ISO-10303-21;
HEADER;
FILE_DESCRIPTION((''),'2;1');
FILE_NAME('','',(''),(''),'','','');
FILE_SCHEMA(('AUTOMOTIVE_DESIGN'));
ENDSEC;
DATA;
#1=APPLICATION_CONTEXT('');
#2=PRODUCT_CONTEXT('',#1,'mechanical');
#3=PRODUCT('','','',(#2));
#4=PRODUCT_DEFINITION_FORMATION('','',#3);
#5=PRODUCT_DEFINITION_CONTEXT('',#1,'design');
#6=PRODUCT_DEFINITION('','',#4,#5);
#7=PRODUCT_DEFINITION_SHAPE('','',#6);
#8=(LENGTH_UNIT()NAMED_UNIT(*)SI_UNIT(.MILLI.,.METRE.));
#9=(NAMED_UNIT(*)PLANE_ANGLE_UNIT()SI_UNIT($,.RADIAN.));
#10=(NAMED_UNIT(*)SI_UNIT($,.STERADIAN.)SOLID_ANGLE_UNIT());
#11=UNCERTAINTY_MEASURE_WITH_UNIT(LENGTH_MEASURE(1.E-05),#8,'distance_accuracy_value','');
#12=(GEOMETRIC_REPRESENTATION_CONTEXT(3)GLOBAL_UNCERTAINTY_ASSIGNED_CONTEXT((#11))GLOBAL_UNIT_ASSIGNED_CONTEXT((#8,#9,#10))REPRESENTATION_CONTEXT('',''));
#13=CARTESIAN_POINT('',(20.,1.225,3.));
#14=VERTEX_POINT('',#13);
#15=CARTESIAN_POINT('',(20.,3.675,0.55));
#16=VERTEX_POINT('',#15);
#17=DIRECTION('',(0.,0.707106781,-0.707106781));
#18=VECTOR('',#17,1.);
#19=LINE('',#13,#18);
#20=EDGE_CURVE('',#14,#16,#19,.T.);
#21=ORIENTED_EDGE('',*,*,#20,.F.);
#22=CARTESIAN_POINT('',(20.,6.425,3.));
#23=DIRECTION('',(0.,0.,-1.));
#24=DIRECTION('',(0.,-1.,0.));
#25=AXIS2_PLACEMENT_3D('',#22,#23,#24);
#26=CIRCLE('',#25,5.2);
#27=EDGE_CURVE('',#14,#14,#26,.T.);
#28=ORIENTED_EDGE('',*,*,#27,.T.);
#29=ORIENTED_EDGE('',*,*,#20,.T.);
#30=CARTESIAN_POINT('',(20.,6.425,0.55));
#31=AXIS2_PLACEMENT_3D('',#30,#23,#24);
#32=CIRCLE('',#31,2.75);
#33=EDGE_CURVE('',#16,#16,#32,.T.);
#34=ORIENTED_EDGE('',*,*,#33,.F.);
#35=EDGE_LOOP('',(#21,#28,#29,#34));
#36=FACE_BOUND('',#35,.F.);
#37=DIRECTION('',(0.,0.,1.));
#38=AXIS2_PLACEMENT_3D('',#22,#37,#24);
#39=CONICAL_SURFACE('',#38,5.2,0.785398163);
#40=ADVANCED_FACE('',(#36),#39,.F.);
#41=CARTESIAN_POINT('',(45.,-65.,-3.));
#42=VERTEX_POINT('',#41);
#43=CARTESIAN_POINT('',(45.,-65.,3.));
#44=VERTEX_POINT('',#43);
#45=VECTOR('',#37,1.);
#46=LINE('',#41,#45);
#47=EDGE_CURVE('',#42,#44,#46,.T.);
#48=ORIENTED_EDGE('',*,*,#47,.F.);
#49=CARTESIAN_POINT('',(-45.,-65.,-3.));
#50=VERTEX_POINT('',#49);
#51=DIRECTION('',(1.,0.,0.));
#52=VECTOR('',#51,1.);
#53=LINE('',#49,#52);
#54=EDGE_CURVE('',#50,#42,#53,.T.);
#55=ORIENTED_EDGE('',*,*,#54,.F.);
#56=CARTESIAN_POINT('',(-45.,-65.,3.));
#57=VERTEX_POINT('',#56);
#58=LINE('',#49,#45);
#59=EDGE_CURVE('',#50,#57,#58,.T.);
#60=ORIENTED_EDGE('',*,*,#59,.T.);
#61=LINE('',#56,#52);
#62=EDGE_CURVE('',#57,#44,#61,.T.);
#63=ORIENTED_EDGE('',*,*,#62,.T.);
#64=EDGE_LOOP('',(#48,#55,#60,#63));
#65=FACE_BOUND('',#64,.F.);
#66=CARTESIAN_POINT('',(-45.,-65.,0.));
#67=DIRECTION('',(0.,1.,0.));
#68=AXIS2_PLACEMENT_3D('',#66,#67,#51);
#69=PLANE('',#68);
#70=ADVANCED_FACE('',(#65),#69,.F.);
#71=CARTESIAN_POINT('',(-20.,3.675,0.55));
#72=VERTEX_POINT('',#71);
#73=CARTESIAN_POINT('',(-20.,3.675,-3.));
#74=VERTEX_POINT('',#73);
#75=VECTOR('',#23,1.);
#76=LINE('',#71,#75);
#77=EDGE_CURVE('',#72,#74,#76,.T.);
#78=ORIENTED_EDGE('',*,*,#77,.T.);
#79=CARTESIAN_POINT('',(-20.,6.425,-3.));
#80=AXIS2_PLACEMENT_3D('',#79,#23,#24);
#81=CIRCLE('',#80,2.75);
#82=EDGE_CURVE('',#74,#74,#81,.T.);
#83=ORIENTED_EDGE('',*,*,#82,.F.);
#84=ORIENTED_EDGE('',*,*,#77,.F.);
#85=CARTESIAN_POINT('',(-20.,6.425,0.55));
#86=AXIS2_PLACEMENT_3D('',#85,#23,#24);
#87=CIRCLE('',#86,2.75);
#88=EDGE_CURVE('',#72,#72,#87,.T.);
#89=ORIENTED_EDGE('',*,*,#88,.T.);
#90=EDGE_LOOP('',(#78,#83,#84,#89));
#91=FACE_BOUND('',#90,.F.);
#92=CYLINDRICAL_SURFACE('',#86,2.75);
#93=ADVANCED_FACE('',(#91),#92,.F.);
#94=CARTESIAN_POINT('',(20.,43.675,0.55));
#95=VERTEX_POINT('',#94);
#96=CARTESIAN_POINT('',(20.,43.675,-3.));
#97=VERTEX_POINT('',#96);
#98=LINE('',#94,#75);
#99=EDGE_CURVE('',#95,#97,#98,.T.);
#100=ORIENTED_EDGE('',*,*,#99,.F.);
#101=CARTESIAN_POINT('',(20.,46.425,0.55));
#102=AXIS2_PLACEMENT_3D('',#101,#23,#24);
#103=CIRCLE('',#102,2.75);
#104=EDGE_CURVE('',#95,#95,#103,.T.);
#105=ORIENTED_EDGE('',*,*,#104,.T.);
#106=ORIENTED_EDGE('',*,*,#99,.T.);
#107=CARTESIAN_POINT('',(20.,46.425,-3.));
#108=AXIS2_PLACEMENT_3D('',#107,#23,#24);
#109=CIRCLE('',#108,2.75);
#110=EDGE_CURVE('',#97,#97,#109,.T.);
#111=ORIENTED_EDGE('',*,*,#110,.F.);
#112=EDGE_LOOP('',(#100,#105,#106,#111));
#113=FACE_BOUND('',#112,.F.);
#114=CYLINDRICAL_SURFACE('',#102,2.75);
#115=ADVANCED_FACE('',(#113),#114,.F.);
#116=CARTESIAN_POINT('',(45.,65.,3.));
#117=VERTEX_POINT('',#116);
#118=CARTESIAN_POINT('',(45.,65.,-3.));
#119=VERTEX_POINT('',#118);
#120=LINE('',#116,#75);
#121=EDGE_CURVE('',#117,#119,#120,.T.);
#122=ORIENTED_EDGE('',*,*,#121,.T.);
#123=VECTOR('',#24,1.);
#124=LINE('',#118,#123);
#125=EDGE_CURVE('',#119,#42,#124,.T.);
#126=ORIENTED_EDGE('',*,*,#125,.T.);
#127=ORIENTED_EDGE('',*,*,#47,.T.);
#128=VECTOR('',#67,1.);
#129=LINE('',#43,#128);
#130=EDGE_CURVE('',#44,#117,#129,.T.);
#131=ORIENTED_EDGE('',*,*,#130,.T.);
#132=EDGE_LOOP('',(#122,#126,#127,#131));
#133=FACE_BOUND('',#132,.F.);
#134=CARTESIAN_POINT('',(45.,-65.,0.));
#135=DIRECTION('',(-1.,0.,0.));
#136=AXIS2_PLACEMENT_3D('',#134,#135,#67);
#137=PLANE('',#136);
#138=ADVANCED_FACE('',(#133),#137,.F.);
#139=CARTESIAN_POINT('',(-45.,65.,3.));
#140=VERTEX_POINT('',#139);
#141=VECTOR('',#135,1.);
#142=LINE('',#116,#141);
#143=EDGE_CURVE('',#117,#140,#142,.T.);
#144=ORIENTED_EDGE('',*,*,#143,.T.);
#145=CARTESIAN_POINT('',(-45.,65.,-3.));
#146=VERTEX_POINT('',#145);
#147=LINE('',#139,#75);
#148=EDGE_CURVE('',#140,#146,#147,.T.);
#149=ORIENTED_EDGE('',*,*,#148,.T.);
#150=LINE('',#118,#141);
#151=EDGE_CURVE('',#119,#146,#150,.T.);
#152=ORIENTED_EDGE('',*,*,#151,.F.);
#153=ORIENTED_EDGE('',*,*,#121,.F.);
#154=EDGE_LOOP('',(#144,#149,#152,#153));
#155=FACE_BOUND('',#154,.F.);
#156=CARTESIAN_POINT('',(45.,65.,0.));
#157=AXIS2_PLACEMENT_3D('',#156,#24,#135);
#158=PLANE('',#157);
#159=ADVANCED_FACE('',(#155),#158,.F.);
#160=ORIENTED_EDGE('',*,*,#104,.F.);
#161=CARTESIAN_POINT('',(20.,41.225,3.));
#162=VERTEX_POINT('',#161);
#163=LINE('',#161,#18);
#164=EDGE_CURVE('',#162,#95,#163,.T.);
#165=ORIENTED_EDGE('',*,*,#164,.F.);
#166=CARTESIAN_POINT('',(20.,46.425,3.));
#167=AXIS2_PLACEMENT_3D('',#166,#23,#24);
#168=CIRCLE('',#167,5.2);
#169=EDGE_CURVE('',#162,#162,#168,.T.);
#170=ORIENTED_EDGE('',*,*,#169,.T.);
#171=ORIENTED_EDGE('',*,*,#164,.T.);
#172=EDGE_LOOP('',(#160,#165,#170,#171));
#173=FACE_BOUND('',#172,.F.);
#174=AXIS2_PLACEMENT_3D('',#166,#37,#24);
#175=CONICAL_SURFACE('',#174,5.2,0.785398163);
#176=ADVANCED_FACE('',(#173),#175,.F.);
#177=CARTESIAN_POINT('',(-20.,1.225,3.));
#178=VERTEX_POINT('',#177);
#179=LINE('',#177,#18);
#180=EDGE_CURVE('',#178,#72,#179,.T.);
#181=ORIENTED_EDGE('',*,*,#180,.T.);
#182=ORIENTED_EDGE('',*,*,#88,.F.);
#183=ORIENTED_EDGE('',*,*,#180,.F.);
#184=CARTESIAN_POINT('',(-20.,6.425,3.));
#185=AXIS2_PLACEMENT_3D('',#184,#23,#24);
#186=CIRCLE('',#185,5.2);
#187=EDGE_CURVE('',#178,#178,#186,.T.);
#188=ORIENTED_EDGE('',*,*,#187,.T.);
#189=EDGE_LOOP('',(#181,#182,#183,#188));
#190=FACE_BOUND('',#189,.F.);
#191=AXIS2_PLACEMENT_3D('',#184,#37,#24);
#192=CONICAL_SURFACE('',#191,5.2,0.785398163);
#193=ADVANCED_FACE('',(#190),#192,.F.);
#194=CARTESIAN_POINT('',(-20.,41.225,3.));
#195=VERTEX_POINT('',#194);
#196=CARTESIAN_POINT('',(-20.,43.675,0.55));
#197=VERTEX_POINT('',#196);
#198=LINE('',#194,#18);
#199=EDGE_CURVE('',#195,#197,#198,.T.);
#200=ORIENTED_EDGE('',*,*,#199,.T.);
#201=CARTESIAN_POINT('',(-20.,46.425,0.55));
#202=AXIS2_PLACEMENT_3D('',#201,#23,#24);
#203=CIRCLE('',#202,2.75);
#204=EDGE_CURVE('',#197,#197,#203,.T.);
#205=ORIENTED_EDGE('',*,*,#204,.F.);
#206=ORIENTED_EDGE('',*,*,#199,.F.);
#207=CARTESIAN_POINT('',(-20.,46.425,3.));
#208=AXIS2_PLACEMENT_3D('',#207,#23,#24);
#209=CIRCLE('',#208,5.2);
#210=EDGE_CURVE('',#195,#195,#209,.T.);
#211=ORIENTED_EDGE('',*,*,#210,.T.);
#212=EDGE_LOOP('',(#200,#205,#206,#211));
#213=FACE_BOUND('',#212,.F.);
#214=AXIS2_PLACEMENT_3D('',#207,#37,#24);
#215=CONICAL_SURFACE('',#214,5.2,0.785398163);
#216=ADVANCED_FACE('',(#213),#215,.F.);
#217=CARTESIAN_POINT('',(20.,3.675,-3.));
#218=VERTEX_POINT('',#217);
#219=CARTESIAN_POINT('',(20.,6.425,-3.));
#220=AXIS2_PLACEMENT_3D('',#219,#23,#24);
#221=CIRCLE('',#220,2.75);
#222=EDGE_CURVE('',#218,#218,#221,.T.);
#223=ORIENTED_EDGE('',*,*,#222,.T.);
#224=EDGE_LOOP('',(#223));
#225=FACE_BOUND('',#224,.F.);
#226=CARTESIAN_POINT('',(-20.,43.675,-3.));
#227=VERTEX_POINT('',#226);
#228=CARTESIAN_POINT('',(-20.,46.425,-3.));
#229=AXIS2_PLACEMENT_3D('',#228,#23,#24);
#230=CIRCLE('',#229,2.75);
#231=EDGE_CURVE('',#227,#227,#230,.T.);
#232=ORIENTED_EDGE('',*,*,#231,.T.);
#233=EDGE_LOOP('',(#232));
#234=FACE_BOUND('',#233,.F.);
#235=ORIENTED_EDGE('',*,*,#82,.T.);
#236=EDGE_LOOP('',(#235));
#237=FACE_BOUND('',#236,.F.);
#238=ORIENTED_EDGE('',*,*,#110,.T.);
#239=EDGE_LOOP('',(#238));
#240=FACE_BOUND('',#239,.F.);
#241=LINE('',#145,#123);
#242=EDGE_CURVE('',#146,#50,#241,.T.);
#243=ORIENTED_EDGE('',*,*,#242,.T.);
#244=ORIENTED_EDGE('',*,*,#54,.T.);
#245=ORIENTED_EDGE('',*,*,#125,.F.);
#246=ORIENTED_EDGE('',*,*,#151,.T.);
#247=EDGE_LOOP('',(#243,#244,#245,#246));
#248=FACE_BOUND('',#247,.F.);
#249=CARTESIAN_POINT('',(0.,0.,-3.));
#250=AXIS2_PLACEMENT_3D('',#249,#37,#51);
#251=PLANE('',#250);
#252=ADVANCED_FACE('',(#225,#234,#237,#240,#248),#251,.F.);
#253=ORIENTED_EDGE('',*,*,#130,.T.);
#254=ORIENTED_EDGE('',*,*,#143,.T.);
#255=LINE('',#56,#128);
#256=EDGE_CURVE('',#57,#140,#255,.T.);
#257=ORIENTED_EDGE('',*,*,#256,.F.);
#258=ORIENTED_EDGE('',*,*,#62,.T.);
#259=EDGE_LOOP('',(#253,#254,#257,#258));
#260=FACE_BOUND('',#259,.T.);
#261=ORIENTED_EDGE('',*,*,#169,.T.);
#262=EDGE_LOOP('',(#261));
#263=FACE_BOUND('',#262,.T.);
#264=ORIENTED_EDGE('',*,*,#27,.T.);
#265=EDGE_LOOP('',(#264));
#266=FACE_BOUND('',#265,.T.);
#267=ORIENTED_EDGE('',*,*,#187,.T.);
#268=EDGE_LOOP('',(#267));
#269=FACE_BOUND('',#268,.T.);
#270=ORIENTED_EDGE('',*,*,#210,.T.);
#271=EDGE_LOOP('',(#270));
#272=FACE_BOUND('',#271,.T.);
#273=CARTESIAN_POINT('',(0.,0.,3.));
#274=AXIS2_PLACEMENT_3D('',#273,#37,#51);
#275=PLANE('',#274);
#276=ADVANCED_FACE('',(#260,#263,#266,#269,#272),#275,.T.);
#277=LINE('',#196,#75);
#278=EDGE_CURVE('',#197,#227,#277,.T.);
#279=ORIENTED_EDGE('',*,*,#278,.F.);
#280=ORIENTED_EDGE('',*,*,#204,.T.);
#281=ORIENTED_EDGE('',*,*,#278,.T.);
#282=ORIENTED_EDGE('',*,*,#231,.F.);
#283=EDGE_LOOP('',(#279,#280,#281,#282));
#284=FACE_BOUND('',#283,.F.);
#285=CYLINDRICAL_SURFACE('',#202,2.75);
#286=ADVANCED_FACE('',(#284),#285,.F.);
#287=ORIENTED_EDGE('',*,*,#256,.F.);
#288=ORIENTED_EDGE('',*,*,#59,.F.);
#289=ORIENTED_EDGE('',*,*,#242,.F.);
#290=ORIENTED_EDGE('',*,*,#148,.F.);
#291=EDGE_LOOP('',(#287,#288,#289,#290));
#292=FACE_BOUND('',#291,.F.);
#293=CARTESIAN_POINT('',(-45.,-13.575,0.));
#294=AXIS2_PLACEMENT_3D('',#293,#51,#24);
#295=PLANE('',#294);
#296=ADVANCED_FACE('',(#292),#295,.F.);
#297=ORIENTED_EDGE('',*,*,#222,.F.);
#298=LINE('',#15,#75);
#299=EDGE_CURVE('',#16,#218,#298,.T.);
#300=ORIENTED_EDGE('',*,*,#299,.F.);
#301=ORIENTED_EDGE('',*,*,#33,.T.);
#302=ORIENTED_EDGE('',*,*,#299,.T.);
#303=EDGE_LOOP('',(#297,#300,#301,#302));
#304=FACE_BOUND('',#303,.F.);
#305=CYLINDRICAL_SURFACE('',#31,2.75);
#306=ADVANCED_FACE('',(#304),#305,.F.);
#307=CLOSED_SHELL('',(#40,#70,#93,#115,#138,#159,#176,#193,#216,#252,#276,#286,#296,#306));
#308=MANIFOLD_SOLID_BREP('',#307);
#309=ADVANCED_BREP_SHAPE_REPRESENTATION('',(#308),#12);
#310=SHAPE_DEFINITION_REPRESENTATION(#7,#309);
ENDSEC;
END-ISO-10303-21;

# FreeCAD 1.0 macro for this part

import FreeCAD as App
import Part
import Sketcher


def add_polygon(sketch, points):
    """Adds a closed chain of lines whose ends are joined by coincident constraints."""
    first, n = sketch.GeometryCount, len(points)
    for a, b in zip(points, points[1:] + points[:1]):
        sketch.addGeometry(Part.LineSegment(App.Vector(*a, 0), App.Vector(*b, 0)), False)
    for i in range(n):
        sketch.addConstraint(Sketcher.Constraint("Coincident", first + i, 2, first + (i + 1) % n, 1))

doc = App.newDocument("Part")
body = doc.addObject("PartDesign::Body", "Body")

sketch1 = body.newObject("Sketcher::SketchObject", "Sketch")
sketch1.AttachmentSupport = (doc.getObject("XY_Plane"), [""])
sketch1.MapMode = "FlatFace"
add_polygon(sketch1, [(-45, -65), (45, -65), (45, 65), (-45, 65)])
sketch1.addConstraint([
    Sketcher.Constraint("Horizontal", 0),
    Sketcher.Constraint("Vertical", 1),
    Sketcher.Constraint("Horizontal", 2),
    Sketcher.Constraint("Vertical", 3),
    Sketcher.Constraint("Symmetric", 0, 2, 2, 2, -1, 1),
    Sketcher.Constraint("DistanceX", 0, 1, 0, 2, 90.0),
    Sketcher.Constraint("DistanceY", 1, 1, 1, 2, 130.0),
])
pad1 = body.newObject("PartDesign::Pad", "Pad")
pad1.Profile = sketch1
pad1.Length = 6
pad1.Midplane = True

sketch2 = body.newObject("Sketcher::SketchObject", "Sketch001")
sketch2.AttachmentSupport = (doc.getObject("XY_Plane"), [""])
sketch2.MapMode = "FlatFace"
sketch2.AttachmentOffset = App.Placement(App.Vector(0, 0, 3), App.Rotation())
sketch2.addGeometry([
    Part.Circle(App.Vector(-20, 46.4, 0), App.Vector(0, 0, 1), 2.8),
    Part.Circle(App.Vector(20, 46.4, 0), App.Vector(0, 0, 1), 2.8),
    Part.Circle(App.Vector(-20, 6.4, 0), App.Vector(0, 0, 1), 2.8),
    Part.Circle(App.Vector(20, 6.4, 0), App.Vector(0, 0, 1), 2.8),
], False)
sketch2.addConstraint([
    Sketcher.Constraint("Equal", 0, 1),
    Sketcher.Constraint("Equal", 1, 2),
    Sketcher.Constraint("Equal", 2, 3),
    Sketcher.Constraint("Symmetric", 0, 3, 1, 3, -2),
    Sketcher.Constraint("Symmetric", 2, 3, 3, 3, -2),
    Sketcher.Constraint("Vertical", 0, 3, 2, 3),
    Sketcher.Constraint("Diameter", 0, 5.5),
    Sketcher.Constraint("DistanceX", 0, 3, -1, 1, 20.0),
    Sketcher.Constraint("DistanceY", 2, 3, 0, 3, 40.0),
    Sketcher.Constraint("DistanceY", -1, 1, 0, 3, 46.425),
])
doc.recompute()
hole = body.newObject("PartDesign::Hole", "Hole")
hole.Profile = sketch2
hole.ThreadType = "None"
hole.Diameter = 5.5
hole.DepthType = "ThroughAll"
hole.HoleCutType = "Countersink"
hole.HoleCutDiameter = 10.4
hole.HoleCutCountersinkAngle = 90

doc.recompute()
